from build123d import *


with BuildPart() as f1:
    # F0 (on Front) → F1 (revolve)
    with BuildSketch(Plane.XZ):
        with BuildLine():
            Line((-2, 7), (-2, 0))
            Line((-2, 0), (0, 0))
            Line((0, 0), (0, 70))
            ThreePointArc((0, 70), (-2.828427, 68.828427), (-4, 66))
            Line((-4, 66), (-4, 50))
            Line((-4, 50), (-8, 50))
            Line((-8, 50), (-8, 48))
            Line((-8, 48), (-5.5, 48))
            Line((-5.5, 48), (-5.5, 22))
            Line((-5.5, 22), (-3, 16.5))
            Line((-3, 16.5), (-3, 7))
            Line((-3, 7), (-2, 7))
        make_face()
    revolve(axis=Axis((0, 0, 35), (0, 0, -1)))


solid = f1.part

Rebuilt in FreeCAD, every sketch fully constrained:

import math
import FreeCAD as App
import Part
import Sketcher

doc = App.newDocument("Part")
params = doc.addObject("Spreadsheet::Sheet", "Params")
for row, (alias, value) in enumerate([
    ("sketch1_radius", "4 mm"),
    ("sketch1_width", "2 mm"),
    ("sketch1_width2", "4 mm"),
    ("sketch1_width3", "1 mm"),
    ("sketch1_height", "7 mm"),
    ("revolution_angle", "360 deg"),
], start=1):
    params.set(f"A{row}", alias)
    params.set(f"B{row}", "=" + value)
    params.setAlias(f"B{row}", alias)

body = doc.addObject("PartDesign::Body", "Body")

# Sketch on XZ plane
sketch1 = doc.addObject("Sketcher::SketchObject", "Sketch")
body.addObject(sketch1)
sketch1.AttachmentSupport = (doc.XZ_Plane, [""])
sketch1.MapMode = "FlatFace"
sketch1.addGeometry(Part.LineSegment(App.Vector(-2, 7, 0), App.Vector(-2, 0, 0)), False)
sketch1.addGeometry(Part.LineSegment(App.Vector(-2, 0, 0), App.Vector(0, 0, 0)), False)
sketch1.addGeometry(Part.LineSegment(App.Vector(0, 0, 0), App.Vector(0, 70, 0)), False)
sketch1.addGeometry(Part.ArcOfCircle(Part.Circle(App.Vector(0, 66, 0), App.Vector(0, 0, 1), 4), math.radians(90), math.radians(180)), False)
sketch1.addGeometry(Part.LineSegment(App.Vector(-4, 66, 0), App.Vector(-4, 50, 0)), False)
sketch1.addGeometry(Part.LineSegment(App.Vector(-4, 50, 0), App.Vector(-8, 50, 0)), False)
sketch1.addGeometry(Part.LineSegment(App.Vector(-8, 50, 0), App.Vector(-8, 48, 0)), False)
sketch1.addGeometry(Part.LineSegment(App.Vector(-8, 48, 0), App.Vector(-5.5, 48, 0)), False)
sketch1.addGeometry(Part.LineSegment(App.Vector(-5.5, 48, 0), App.Vector(-5.5, 22, 0)), False)
sketch1.addGeometry(Part.LineSegment(App.Vector(-5.5, 22, 0), App.Vector(-3, 16.5, 0)), False)
sketch1.addGeometry(Part.LineSegment(App.Vector(-3, 16.5, 0), App.Vector(-3, 7, 0)), False)
sketch1.addGeometry(Part.LineSegment(App.Vector(-3, 7, 0), App.Vector(-2, 7, 0)), False)
sketch1.addConstraint(Sketcher.Constraint("Coincident", 0, 2, 1, 1))
sketch1.addConstraint(Sketcher.Constraint("Coincident", 1, 2, 2, 1))
sketch1.addConstraint(Sketcher.Constraint("Coincident", 2, 2, 3, 1))
sketch1.addConstraint(Sketcher.Constraint("Tangent", 3, 2, 4, 1))
sketch1.addConstraint(Sketcher.Constraint("Coincident", 4, 2, 5, 1))
sketch1.addConstraint(Sketcher.Constraint("Coincident", 5, 2, 6, 1))
sketch1.addConstraint(Sketcher.Constraint("Coincident", 6, 2, 7, 1))
sketch1.addConstraint(Sketcher.Constraint("Coincident", 7, 2, 8, 1))
sketch1.addConstraint(Sketcher.Constraint("Coincident", 8, 2, 9, 1))
sketch1.addConstraint(Sketcher.Constraint("Coincident", 9, 2, 10, 1))
sketch1.addConstraint(Sketcher.Constraint("Coincident", 10, 2, 11, 1))
sketch1.addConstraint(Sketcher.Constraint("Coincident", 11, 2, 0, 1))
sketch1.addConstraint(Sketcher.Constraint("Vertical", 0))
sketch1.addConstraint(Sketcher.Constraint("Horizontal", 1))
sketch1.addConstraint(Sketcher.Constraint("Vertical", 2))
sketch1.addConstraint(Sketcher.Constraint("Vertical", 4))
sketch1.addConstraint(Sketcher.Constraint("Horizontal", 5))
sketch1.addConstraint(Sketcher.Constraint("Vertical", 6))
sketch1.addConstraint(Sketcher.Constraint("Horizontal", 7))
sketch1.addConstraint(Sketcher.Constraint("Vertical", 8))
sketch1.addConstraint(Sketcher.Constraint("Vertical", 10))
sketch1.addConstraint(Sketcher.Constraint("Horizontal", 11))
sketch1.addConstraint(Sketcher.Constraint("Coincident", 1, 2, -1, 1))
sketch1.addConstraint(Sketcher.Constraint("PointOnObject", 3, 3, -2))
sketch1.addConstraint(Sketcher.Constraint("Equal", 1, 6))
sketch1.addConstraint(Sketcher.Constraint("Radius", 3, 4.0))
sketch1.addConstraint(Sketcher.Constraint("DistanceX", 1, 1, 1, 2, 2.0))
sketch1.addConstraint(Sketcher.Constraint("DistanceX", 5, 2, 5, 1, 4.0))
sketch1.addConstraint(Sketcher.Constraint("DistanceX", 11, 1, 11, 2, 1.0))
sketch1.addConstraint(Sketcher.Constraint("DistanceY", 0, 2, 0, 1, 7.0))
sketch1.addConstraint(Sketcher.Constraint("DistanceY", 2, 1, 2, 2, 70.0))
sketch1.addConstraint(Sketcher.Constraint("DistanceY", 4, 2, 4, 1, 16.0))
sketch1.addConstraint(Sketcher.Constraint("DistanceY", 8, 2, 8, 1, 26.0))
sketch1.addConstraint(Sketcher.Constraint("DistanceX", 7, 1, 7, 2, 2.5))
sketch1.addConstraint(Sketcher.Constraint("DistanceY", 10, 2, 10, 1, 9.5))
sketch1.setExpression("Constraints[25]", "Params.sketch1_radius")
sketch1.setExpression("Constraints[26]", "Params.sketch1_width")
sketch1.setExpression("Constraints[27]", "Params.sketch1_width2")
sketch1.setExpression("Constraints[28]", "Params.sketch1_width3")
sketch1.setExpression("Constraints[29]", "Params.sketch1_height")
revolution = doc.addObject("PartDesign::Revolution", "Revolution")
body.addObject(revolution)
revolution.Profile = sketch1
revolution.ReferenceAxis = (sketch1, ["V_Axis"])
revolution.setExpression("Angle", "Params.revolution_angle")

doc.recompute()
